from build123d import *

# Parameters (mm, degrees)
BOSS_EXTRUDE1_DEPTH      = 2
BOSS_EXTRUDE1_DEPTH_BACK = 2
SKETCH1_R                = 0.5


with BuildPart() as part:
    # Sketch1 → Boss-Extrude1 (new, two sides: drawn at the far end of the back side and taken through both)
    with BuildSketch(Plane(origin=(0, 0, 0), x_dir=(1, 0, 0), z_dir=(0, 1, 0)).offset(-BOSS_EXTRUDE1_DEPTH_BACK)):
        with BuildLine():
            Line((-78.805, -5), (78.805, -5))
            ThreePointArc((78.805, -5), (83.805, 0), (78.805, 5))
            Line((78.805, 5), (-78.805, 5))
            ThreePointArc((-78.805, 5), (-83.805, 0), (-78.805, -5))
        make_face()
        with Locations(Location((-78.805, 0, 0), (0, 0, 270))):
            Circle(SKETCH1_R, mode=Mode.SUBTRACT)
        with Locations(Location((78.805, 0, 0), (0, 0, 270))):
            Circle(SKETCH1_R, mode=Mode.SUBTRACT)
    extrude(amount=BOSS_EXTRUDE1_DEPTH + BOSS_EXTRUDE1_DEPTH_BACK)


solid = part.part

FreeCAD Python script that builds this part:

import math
import FreeCAD as App
import Part
import Sketcher
from FreeCAD import Vector
Q = App.Units.Quantity

doc = App.newDocument("Part")
params = doc.addObject("Spreadsheet::Sheet", "Params")
for row, (alias, value) in enumerate([
    ("sketch1_diameter", "1 mm"),
    ("sketch1_radius", "5 mm"),
    ("sketch1_width", "157.61 mm"),
    ("pad1_length", "2 mm"),
    ("pad1_length2", "2 mm"),
], start=1):
    params.set(f"A{row}", alias)
    params.set(f"B{row}", "=" + value)
    params.setAlias(f"B{row}", alias)

body = doc.addObject("PartDesign::Body", "Body")

# Sketch on XZ plane
sketch1 = doc.addObject("Sketcher::SketchObject", "Sketch")
body.addObject(sketch1)
sketch1.AttachmentSupport = (doc.XZ_Plane, [""])
sketch1.MapMode = "FlatFace"
sketch1.addGeometry(Part.LineSegment(Vector(-78.8, 5, 0), Vector(78.8, 5, 0)), False)
sketch1.addGeometry(Part.ArcOfCircle(Part.Circle(Vector(78.8, 0, 0), Vector(0, 0, 1), 5), math.radians(-90), math.radians(90)), False)
sketch1.addGeometry(Part.LineSegment(Vector(78.8, -5, 0), Vector(-78.8, -5, 0)), False)
sketch1.addGeometry(Part.ArcOfCircle(Part.Circle(Vector(-78.8, 0, 0), Vector(0, 0, 1), 5), math.radians(90), math.radians(270)), False)
sketch1.addGeometry(Part.Circle(Vector(-78.8, 0, 0), Vector(0, 0, 1), 0.5), False)
sketch1.addGeometry(Part.Circle(Vector(78.8, 0, 0), Vector(0, 0, 1), 0.5), False)
sketch1.addConstraint(Sketcher.Constraint("Tangent", 0, 2, 1, 2))
sketch1.addConstraint(Sketcher.Constraint("Tangent", 1, 1, 2, 1))
sketch1.addConstraint(Sketcher.Constraint("Tangent", 2, 2, 3, 2))
sketch1.addConstraint(Sketcher.Constraint("Tangent", 3, 1, 0, 1))
sketch1.addConstraint(Sketcher.Constraint("Horizontal", 0))
sketch1.addConstraint(Sketcher.Constraint("Horizontal", 2))
sketch1.addConstraint(Sketcher.Constraint("Coincident", 4, 3, 3, 3))
sketch1.addConstraint(Sketcher.Constraint("Coincident", 5, 3, 1, 3))
sketch1.addConstraint(Sketcher.Constraint("Equal", 4, 5))
sketch1.addConstraint(Sketcher.Constraint("Symmetric", 1, 3, 3, 3, -1, 1))
sketch1.addConstraint(Sketcher.Constraint("Diameter", 4, Q("1 mm")))
sketch1.addConstraint(Sketcher.Constraint("Radius", 1, Q("5 mm")))
sketch1.addConstraint(Sketcher.Constraint("DistanceX", 0, 1, 0, 2, Q("157.61 mm")))
sketch1.setExpression("Constraints[10]", "Params.sketch1_diameter")
sketch1.setExpression("Constraints[11]", "Params.sketch1_radius")
sketch1.setExpression("Constraints[12]", "Params.sketch1_width")
pad1 = doc.addObject("PartDesign::Pad", "Pad")
body.addObject(pad1)
pad1.Profile = sketch1
pad1.Type = "TwoLengths"
pad1.setExpression("Length", "Params.pad1_length")
pad1.setExpression("Length2", "Params.pad1_length2")
pad1.Reversed = True

doc.recompute()
